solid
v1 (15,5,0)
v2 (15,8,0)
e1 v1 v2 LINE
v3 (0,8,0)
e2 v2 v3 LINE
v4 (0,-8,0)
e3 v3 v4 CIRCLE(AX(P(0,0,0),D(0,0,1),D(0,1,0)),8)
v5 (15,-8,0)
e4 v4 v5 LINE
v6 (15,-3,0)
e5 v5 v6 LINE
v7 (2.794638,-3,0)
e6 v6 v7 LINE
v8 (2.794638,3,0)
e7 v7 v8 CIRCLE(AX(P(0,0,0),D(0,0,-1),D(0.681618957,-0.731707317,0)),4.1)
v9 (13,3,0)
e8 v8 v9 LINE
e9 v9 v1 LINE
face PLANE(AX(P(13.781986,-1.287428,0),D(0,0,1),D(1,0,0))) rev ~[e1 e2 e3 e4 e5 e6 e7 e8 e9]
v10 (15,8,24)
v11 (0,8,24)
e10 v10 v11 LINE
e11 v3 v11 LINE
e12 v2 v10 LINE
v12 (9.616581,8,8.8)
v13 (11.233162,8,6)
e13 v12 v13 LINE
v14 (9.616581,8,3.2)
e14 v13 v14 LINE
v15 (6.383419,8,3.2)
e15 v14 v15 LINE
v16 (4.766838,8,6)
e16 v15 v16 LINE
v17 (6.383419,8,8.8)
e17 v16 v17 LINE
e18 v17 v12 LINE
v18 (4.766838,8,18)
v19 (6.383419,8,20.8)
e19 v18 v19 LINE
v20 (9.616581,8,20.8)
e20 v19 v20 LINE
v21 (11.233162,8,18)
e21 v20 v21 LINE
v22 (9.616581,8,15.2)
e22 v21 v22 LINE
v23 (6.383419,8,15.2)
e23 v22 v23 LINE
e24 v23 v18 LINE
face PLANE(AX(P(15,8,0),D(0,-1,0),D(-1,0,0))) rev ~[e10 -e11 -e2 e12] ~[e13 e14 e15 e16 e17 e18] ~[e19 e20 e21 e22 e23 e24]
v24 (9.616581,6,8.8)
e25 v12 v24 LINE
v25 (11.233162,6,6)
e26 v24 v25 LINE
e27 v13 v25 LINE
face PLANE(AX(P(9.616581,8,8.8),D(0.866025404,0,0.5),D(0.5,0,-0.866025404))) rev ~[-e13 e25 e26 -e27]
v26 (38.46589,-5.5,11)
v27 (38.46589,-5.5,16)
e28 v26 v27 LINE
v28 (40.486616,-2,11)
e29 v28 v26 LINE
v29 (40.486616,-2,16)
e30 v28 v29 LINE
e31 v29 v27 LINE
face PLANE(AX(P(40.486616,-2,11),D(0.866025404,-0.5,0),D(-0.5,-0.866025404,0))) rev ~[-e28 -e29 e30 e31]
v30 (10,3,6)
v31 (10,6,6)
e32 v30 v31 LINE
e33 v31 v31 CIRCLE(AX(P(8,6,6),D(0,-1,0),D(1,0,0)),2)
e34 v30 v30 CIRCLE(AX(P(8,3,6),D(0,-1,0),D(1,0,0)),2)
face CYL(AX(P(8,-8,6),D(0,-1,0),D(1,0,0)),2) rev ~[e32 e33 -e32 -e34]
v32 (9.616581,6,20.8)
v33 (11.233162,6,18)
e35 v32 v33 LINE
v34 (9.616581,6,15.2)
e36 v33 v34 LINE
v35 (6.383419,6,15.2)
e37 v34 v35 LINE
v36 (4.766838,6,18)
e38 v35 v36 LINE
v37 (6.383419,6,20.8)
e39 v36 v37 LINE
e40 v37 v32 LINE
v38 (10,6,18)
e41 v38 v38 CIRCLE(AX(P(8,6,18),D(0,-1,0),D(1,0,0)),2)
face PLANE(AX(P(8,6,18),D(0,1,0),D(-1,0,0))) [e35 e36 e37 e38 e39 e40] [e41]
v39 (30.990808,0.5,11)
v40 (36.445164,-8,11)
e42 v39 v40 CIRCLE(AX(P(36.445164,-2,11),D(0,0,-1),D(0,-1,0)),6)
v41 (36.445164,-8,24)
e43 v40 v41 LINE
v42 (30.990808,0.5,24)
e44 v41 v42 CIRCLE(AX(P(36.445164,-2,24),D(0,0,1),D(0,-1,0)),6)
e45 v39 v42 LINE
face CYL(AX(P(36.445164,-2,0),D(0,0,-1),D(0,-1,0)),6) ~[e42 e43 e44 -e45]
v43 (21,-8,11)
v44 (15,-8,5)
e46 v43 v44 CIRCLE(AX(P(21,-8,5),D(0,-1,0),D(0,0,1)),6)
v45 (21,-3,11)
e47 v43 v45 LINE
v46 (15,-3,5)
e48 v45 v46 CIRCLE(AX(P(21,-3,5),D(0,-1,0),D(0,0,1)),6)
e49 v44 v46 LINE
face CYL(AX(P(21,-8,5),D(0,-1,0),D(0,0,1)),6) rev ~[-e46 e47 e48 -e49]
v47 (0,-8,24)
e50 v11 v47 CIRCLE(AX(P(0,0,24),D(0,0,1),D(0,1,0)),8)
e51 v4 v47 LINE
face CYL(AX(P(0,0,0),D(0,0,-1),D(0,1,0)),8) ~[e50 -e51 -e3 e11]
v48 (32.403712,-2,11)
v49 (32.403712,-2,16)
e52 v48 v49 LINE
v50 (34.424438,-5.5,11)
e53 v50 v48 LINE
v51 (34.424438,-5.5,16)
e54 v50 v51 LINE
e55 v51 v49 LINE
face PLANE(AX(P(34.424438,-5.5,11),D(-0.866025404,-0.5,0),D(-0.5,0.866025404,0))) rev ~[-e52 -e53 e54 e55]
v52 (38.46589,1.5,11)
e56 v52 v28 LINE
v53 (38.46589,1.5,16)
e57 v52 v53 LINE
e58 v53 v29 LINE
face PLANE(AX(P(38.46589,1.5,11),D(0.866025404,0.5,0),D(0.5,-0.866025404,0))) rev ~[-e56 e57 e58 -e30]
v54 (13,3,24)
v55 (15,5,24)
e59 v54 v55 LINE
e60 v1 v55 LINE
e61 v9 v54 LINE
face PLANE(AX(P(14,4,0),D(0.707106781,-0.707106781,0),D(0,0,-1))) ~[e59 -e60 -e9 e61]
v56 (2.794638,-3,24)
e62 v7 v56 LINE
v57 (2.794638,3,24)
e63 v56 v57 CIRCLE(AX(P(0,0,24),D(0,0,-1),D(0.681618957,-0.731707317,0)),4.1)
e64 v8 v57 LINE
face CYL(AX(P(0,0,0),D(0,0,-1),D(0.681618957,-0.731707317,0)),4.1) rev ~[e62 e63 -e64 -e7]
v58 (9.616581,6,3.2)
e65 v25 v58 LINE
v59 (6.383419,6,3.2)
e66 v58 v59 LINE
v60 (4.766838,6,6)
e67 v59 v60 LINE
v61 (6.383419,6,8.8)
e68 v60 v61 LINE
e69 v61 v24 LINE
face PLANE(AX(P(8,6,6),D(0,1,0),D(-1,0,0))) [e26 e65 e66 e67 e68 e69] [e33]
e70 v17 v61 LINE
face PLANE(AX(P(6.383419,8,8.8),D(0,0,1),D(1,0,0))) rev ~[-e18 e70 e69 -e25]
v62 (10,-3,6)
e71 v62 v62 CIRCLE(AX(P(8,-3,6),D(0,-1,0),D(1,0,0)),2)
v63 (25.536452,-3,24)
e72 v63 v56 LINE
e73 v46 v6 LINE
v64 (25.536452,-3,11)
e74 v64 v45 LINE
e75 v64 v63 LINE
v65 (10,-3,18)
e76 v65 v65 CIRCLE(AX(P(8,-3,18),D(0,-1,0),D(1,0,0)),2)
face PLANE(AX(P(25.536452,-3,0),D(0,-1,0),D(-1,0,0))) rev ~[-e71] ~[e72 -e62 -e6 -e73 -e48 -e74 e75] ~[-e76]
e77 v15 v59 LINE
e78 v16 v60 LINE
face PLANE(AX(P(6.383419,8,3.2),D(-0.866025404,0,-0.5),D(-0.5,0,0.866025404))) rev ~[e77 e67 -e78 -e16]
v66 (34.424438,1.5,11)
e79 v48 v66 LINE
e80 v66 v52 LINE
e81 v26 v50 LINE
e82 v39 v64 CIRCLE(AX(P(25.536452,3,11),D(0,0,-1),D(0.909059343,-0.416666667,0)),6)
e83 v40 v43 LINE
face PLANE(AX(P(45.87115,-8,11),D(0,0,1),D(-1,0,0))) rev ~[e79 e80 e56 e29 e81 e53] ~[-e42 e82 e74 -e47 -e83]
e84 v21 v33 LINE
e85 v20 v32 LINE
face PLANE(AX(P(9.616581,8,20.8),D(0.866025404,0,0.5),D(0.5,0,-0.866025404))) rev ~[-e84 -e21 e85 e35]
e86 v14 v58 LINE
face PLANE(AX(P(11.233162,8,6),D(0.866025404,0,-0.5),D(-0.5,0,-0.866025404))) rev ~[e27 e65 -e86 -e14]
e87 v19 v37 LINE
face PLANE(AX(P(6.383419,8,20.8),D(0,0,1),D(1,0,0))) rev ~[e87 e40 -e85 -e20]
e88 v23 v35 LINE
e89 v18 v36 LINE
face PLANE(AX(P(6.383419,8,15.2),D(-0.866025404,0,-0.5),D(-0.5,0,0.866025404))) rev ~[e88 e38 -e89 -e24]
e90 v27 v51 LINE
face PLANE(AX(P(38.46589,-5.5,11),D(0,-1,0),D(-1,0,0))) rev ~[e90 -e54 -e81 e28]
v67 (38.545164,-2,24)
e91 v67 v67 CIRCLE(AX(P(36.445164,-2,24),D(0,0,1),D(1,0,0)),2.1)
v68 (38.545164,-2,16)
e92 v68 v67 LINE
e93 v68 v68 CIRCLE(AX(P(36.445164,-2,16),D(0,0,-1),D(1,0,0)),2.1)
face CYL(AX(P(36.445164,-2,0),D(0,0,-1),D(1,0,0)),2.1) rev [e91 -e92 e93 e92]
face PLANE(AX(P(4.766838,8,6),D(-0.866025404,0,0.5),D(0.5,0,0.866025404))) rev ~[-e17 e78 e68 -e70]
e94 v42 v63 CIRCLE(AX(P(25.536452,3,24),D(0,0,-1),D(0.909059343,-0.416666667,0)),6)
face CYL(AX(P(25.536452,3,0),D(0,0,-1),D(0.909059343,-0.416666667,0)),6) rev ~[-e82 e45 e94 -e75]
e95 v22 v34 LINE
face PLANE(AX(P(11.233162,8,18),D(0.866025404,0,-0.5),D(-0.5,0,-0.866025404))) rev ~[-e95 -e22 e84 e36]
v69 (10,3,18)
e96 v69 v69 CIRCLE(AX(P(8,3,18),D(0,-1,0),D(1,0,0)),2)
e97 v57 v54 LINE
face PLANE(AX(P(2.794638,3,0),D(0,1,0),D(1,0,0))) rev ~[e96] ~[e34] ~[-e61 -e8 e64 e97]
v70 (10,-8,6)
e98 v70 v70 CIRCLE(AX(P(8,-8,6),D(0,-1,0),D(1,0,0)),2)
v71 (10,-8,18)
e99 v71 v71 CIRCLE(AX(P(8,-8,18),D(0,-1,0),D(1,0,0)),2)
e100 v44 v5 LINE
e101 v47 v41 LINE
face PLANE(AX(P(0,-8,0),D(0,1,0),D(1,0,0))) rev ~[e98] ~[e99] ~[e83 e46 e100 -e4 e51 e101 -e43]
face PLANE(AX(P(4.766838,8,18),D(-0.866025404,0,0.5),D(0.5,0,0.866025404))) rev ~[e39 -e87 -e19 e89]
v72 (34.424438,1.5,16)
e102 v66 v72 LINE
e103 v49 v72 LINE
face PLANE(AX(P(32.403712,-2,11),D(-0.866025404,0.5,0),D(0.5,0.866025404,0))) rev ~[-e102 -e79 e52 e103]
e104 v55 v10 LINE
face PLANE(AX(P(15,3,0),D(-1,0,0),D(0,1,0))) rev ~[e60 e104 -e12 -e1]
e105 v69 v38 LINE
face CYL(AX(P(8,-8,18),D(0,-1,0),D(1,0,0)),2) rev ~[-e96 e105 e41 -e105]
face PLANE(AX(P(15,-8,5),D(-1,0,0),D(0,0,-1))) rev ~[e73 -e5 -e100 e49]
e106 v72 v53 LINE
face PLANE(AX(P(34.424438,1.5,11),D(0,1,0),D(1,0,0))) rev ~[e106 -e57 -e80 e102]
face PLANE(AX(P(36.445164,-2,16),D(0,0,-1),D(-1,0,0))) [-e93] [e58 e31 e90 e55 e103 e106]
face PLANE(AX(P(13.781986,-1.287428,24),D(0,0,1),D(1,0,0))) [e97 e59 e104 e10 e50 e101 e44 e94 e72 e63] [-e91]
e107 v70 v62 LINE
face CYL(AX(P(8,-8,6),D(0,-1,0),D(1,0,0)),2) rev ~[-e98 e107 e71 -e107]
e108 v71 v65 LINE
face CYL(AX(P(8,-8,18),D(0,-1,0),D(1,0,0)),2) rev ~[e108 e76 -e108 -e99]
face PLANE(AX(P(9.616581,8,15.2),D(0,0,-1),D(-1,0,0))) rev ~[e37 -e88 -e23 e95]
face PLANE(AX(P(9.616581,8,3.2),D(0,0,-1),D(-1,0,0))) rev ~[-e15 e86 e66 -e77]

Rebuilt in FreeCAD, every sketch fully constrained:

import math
import FreeCAD as App
import Part
import Sketcher
Q = App.Units.Quantity


def edges_at(feature, points):
    """Names of the edges that pass closest to the given points."""
    edges = feature.Shape.Edges
    near = lambda p: min(range(len(edges)), key=lambda i: edges[i].distToShape(Part.Vertex(*p))[0])
    return sorted({f"Edge{near(p) + 1}" for p in points})

doc = App.newDocument("Part")
body = doc.addObject("PartDesign::Body", "Body")

# Sketch on XY plane
sketch1 = body.newObject("Sketcher::SketchObject", "Sketch")
sketch1.AttachmentSupport = (doc.getObject("XY_Plane"), [""])
sketch1.MapMode = "FlatFace"
sketch1.addGeometry(Part.LineSegment(App.Vector(2.794638, 3, 0), App.Vector(15, 3, 0)), False)
sketch1.addGeometry(Part.LineSegment(App.Vector(15, 3, 0), App.Vector(15, 8, 0)), False)
sketch1.addGeometry(Part.LineSegment(App.Vector(15, 8, 0), App.Vector(0, 8, 0)), False)
sketch1.addGeometry(Part.ArcOfCircle(Part.Circle(App.Vector(0, 0, 0), App.Vector(0, 0, 1), 8), math.radians(90), math.radians(270)), False)
sketch1.addGeometry(Part.LineSegment(App.Vector(0, -8, 0), App.Vector(36.445164, -8, 0)), False)
sketch1.addGeometry(Part.ArcOfCircle(Part.Circle(App.Vector(36.445164, -2, 0), App.Vector(0, 0, 1), 6), math.radians(-90), math.radians(155.375682)), False)
sketch1.addGeometry(Part.ArcOfCircle(Part.Circle(App.Vector(25.536452, 3, 0), App.Vector(0, 0, 1), 6), math.radians(-90), math.radians(-24.624318)), False)
sketch1.addGeometry(Part.LineSegment(App.Vector(25.536452, -3, 0), App.Vector(2.794638, -3, 0)), False)
sketch1.addGeometry(Part.ArcOfCircle(Part.Circle(App.Vector(0, 0, 0), App.Vector(0, 0, 1), 4.1), math.radians(47.029716), math.radians(312.970284)), False)
sketch1.addGeometry(Part.Circle(App.Vector(36.445164, -2, 0), App.Vector(0, 0, 1), 2.1), False)
sketch1.addConstraint(Sketcher.Constraint("Coincident", 0, 2, 1, 1))
sketch1.addConstraint(Sketcher.Constraint("Coincident", 1, 2, 2, 1))
sketch1.addConstraint(Sketcher.Constraint("Tangent", 2, 2, 3, 1))
sketch1.addConstraint(Sketcher.Constraint("Tangent", 3, 2, 4, 1))
sketch1.addConstraint(Sketcher.Constraint("Tangent", 4, 2, 5, 1))
sketch1.addConstraint(Sketcher.Constraint("Tangent", 5, 2, 6, 2))
sketch1.addConstraint(Sketcher.Constraint("Tangent", 6, 1, 7, 1))
sketch1.addConstraint(Sketcher.Constraint("Coincident", 7, 2, 8, 2))
sketch1.addConstraint(Sketcher.Constraint("Coincident", 8, 1, 0, 1))
sketch1.addConstraint(Sketcher.Constraint("Horizontal", 0))
sketch1.addConstraint(Sketcher.Constraint("Vertical", 1))
sketch1.addConstraint(Sketcher.Constraint("Horizontal", 2))
sketch1.addConstraint(Sketcher.Constraint("Horizontal", 4))
sketch1.addConstraint(Sketcher.Constraint("Horizontal", 7))
sketch1.addConstraint(Sketcher.Constraint("Coincident", 3, 3, -1, 1))
sketch1.addConstraint(Sketcher.Constraint("Coincident", 8, 3, -1, 1))
sketch1.addConstraint(Sketcher.Constraint("Coincident", 9, 3, 5, 3))
sketch1.addConstraint(Sketcher.Constraint("Equal", 5, 6))
sketch1.addConstraint(Sketcher.Constraint("Horizontal", 6, 3, 0, 2))
sketch1.addConstraint(Sketcher.Constraint("Vertical", 7, 2, 8, 1))
sketch1.addConstraint(Sketcher.Constraint("Radius", 3, 8.0))
sketch1.addConstraint(Sketcher.Constraint("Radius", 5, 6.0))
sketch1.addConstraint(Sketcher.Constraint("Diameter", 9, 4.2))
sketch1.addConstraint(Sketcher.Constraint("Radius", 8, 4.1))
sketch1.addConstraint(Sketcher.Constraint("DistanceX", 2, 2, 2, 1, 15.0))
sketch1.addConstraint(Sketcher.Constraint("DistanceX", 4, 1, 4, 2, 36.445164))
pad1 = body.newObject("PartDesign::Pad", "Pad")
pad1.Profile = sketch1
pad1.Length = 24

# Sketch on XZ plane
sketch2 = body.newObject("Sketcher::SketchObject", "Sketch001")
sketch2.AttachmentSupport = (doc.getObject("XZ_Plane"), [""])
sketch2.MapMode = "FlatFace"
sketch2.AttachmentOffset = App.Placement(App.Vector(0, 0, 8), App.Rotation())
sketch2.addGeometry(Part.Circle(App.Vector(8, 18, 0), App.Vector(0, 0, 1), 2), False)
sketch2.addGeometry(Part.Circle(App.Vector(8, 6, 0), App.Vector(0, 0, 1), 2), False)
sketch2.addGeometry(Part.LineSegment(App.Vector(15, 5, 0), App.Vector(15, 0, 0)), False)
sketch2.addGeometry(Part.LineSegment(App.Vector(15, 0, 0), App.Vector(45.87115, 0, 0)), False)
sketch2.addGeometry(Part.LineSegment(App.Vector(45.87115, 0, 0), App.Vector(45.87115, 11, 0)), False)
sketch2.addGeometry(Part.LineSegment(App.Vector(45.87115, 11, 0), App.Vector(21, 11, 0)), False)
sketch2.addGeometry(Part.ArcOfCircle(Part.Circle(App.Vector(21, 5, 0), App.Vector(0, 0, 1), 6), math.radians(90), math.radians(180)), False)
sketch2.addConstraint(Sketcher.Constraint("Coincident", 2, 2, 3, 1))
sketch2.addConstraint(Sketcher.Constraint("Coincident", 3, 2, 4, 1))
sketch2.addConstraint(Sketcher.Constraint("Coincident", 4, 2, 5, 1))
sketch2.addConstraint(Sketcher.Constraint("Tangent", 5, 2, 6, 1))
sketch2.addConstraint(Sketcher.Constraint("Tangent", 6, 2, 2, 1))
sketch2.addConstraint(Sketcher.Constraint("Vertical", 2))
sketch2.addConstraint(Sketcher.Constraint("Horizontal", 3))
sketch2.addConstraint(Sketcher.Constraint("Vertical", 4))
sketch2.addConstraint(Sketcher.Constraint("Horizontal", 5))
sketch2.addConstraint(Sketcher.Constraint("Equal", 0, 1))
sketch2.addConstraint(Sketcher.Constraint("PointOnObject", 2, 2, -1))
sketch2.addConstraint(Sketcher.Constraint("Vertical", 0, 3, 1, 3))
sketch2.addConstraint(Sketcher.Constraint("Diameter", 0, 4.0))
sketch2.addConstraint(Sketcher.Constraint("Radius", 6, 6.0))
sketch2.addConstraint(Sketcher.Constraint("DistanceY", 2, 2, 2, 1, 5.0))
sketch2.addConstraint(Sketcher.Constraint("DistanceX", -1, 1, 0, 3, 8.0))
sketch2.addConstraint(Sketcher.Constraint("DistanceY", -1, 1, 0, 3, 18.0))
sketch2.addConstraint(Sketcher.Constraint("DistanceY", -1, 1, 1, 3, 6.0))
sketch2.addConstraint(Sketcher.Constraint("DistanceX", -1, 1, 6, 3, 21.0))
sketch2.addConstraint(Sketcher.Constraint("DistanceX", 3, 1, 3, 2, 30.87115))
pocket1 = body.newObject("PartDesign::Pocket", "Pocket")
pocket1.Profile = sketch2
pocket1.Type = "ThroughAll"

# Sketch on XZ plane
sketch3 = body.newObject("Sketcher::SketchObject", "Sketch002")
sketch3.AttachmentSupport = (doc.getObject("XZ_Plane"), [""])
sketch3.MapMode = "FlatFace"
sketch3.AttachmentOffset = App.Placement(App.Vector(0, 0, -8), App.Rotation())
sketch3.addGeometry(Part.LineSegment(App.Vector(9.616581, 8.8, 0), App.Vector(11.233162, 6, 0)), False)
sketch3.addGeometry(Part.LineSegment(App.Vector(11.233162, 6, 0), App.Vector(9.616581, 3.2, 0)), False)
sketch3.addGeometry(Part.LineSegment(App.Vector(9.616581, 3.2, 0), App.Vector(6.383419, 3.2, 0)), False)
sketch3.addGeometry(Part.LineSegment(App.Vector(6.383419, 3.2, 0), App.Vector(4.766838, 6, 0)), False)
sketch3.addGeometry(Part.LineSegment(App.Vector(4.766838, 6, 0), App.Vector(6.383419, 8.8, 0)), False)
sketch3.addGeometry(Part.LineSegment(App.Vector(6.383419, 8.8, 0), App.Vector(9.616581, 8.8, 0)), False)
sketch3.addGeometry(Part.LineSegment(App.Vector(9.616581, 20.8, 0), App.Vector(11.233162, 18, 0)), False)
sketch3.addGeometry(Part.LineSegment(App.Vector(11.233162, 18, 0), App.Vector(9.616581, 15.2, 0)), False)
sketch3.addGeometry(Part.LineSegment(App.Vector(9.616581, 15.2, 0), App.Vector(6.383419, 15.2, 0)), False)
sketch3.addGeometry(Part.LineSegment(App.Vector(6.383419, 15.2, 0), App.Vector(4.766838, 18, 0)), False)
sketch3.addGeometry(Part.LineSegment(App.Vector(4.766838, 18, 0), App.Vector(6.383419, 20.8, 0)), False)
sketch3.addGeometry(Part.LineSegment(App.Vector(6.383419, 20.8, 0), App.Vector(9.616581, 20.8, 0)), False)
sketch3.addConstraint(Sketcher.Constraint("Coincident", 0, 2, 1, 1))
sketch3.addConstraint(Sketcher.Constraint("Coincident", 1, 2, 2, 1))
sketch3.addConstraint(Sketcher.Constraint("Coincident", 2, 2, 3, 1))
sketch3.addConstraint(Sketcher.Constraint("Coincident", 3, 2, 4, 1))
sketch3.addConstraint(Sketcher.Constraint("Coincident", 4, 2, 5, 1))
sketch3.addConstraint(Sketcher.Constraint("Coincident", 5, 2, 0, 1))
sketch3.addConstraint(Sketcher.Constraint("Coincident", 6, 2, 7, 1))
sketch3.addConstraint(Sketcher.Constraint("Coincident", 7, 2, 8, 1))
sketch3.addConstraint(Sketcher.Constraint("Coincident", 8, 2, 9, 1))
sketch3.addConstraint(Sketcher.Constraint("Coincident", 9, 2, 10, 1))
sketch3.addConstraint(Sketcher.Constraint("Coincident", 10, 2, 11, 1))
sketch3.addConstraint(Sketcher.Constraint("Coincident", 11, 2, 6, 1))
sketch3.addConstraint(Sketcher.Constraint("Horizontal", 2))
sketch3.addConstraint(Sketcher.Constraint("Horizontal", 5))
sketch3.addConstraint(Sketcher.Constraint("Horizontal", 8))
sketch3.addConstraint(Sketcher.Constraint("Horizontal", 11))
sketch3.addConstraint(Sketcher.Constraint("Parallel", 0, 3))
sketch3.addConstraint(Sketcher.Constraint("Parallel", 1, 4))
sketch3.addConstraint(Sketcher.Constraint("Parallel", 3, 6))
sketch3.addConstraint(Sketcher.Constraint("Parallel", 4, 7))
sketch3.addConstraint(Sketcher.Constraint("Parallel", 6, 9))
sketch3.addConstraint(Sketcher.Constraint("Parallel", 7, 10))
sketch3.addConstraint(Sketcher.Constraint("Horizontal", 0, 2, 3, 2))
sketch3.addConstraint(Sketcher.Constraint("Horizontal", 6, 2, 9, 2))
sketch3.addConstraint(Sketcher.Constraint("Vertical", 2, 2, 4, 2))
sketch3.addConstraint(Sketcher.Constraint("Vertical", 1, 2, 5, 2))
sketch3.addConstraint(Sketcher.Constraint("Vertical", 0, 2, 6, 2))
sketch3.addConstraint(Sketcher.Constraint("Vertical", 5, 2, 7, 2))
sketch3.addConstraint(Sketcher.Constraint("Vertical", 4, 2, 8, 2))
sketch3.addConstraint(Sketcher.Constraint("Vertical", 8, 2, 10, 2))
sketch3.addConstraint(Sketcher.Constraint("Angle", 0, Q("-60 deg")))
sketch3.addConstraint(Sketcher.Constraint("DistanceY", -1, 1, 0, 2, 6.0))
sketch3.addConstraint(Sketcher.Constraint("DistanceY", -1, 1, 6, 2, 18.0))
sketch3.addConstraint(Sketcher.Constraint("DistanceY", -1, 1, 1, 2, 3.2))
sketch3.addConstraint(Sketcher.Constraint("DistanceX", 2, 2, 2, 1, 3.233162))
sketch3.addConstraint(Sketcher.Constraint("DistanceX", -1, 1, 0, 2, 11.233162))
pocket2 = body.newObject("PartDesign::Pocket", "Pocket001")
pocket2.Profile = sketch3
pocket2.Length = 2
pocket2.Reversed = True

# Sketch on XY plane
sketch4 = body.newObject("Sketcher::SketchObject", "Sketch003")
sketch4.AttachmentSupport = (doc.getObject("XY_Plane"), [""])
sketch4.MapMode = "FlatFace"
sketch4.AttachmentOffset = App.Placement(App.Vector(0, 0, 11), App.Rotation())
sketch4.addGeometry(Part.LineSegment(App.Vector(34.424438, 1.5, 0), App.Vector(38.46589, 1.5, 0)), False)
sketch4.addGeometry(Part.LineSegment(App.Vector(38.46589, 1.5, 0), App.Vector(40.486616, -2, 0)), False)
sketch4.addGeometry(Part.LineSegment(App.Vector(40.486616, -2, 0), App.Vector(38.46589, -5.5, 0)), False)
sketch4.addGeometry(Part.LineSegment(App.Vector(38.46589, -5.5, 0), App.Vector(34.424438, -5.5, 0)), False)
sketch4.addGeometry(Part.LineSegment(App.Vector(34.424438, -5.5, 0), App.Vector(32.403712, -2, 0)), False)
sketch4.addGeometry(Part.LineSegment(App.Vector(32.403712, -2, 0), App.Vector(34.424438, 1.5, 0)), False)
sketch4.addConstraint(Sketcher.Constraint("Coincident", 0, 2, 1, 1))
sketch4.addConstraint(Sketcher.Constraint("Coincident", 1, 2, 2, 1))
sketch4.addConstraint(Sketcher.Constraint("Coincident", 2, 2, 3, 1))
sketch4.addConstraint(Sketcher.Constraint("Coincident", 3, 2, 4, 1))
sketch4.addConstraint(Sketcher.Constraint("Coincident", 4, 2, 5, 1))
sketch4.addConstraint(Sketcher.Constraint("Coincident", 5, 2, 0, 1))
sketch4.addConstraint(Sketcher.Constraint("Horizontal", 0))
sketch4.addConstraint(Sketcher.Constraint("Horizontal", 3))
sketch4.addConstraint(Sketcher.Constraint("Parallel", 1, 4))
sketch4.addConstraint(Sketcher.Constraint("Parallel", 2, 5))
sketch4.addConstraint(Sketcher.Constraint("Horizontal", 1, 2, 4, 2))
sketch4.addConstraint(Sketcher.Constraint("Vertical", 0, 2, 2, 2))
sketch4.addConstraint(Sketcher.Constraint("Vertical", 3, 2, 5, 2))
sketch4.addConstraint(Sketcher.Constraint("Angle", 1, Q("-60 deg")))
sketch4.addConstraint(Sketcher.Constraint("DistanceY", 1, 2, -1, 1, 2.0))
sketch4.addConstraint(Sketcher.Constraint("DistanceY", 2, 2, 0, 2, 7.0))
sketch4.addConstraint(Sketcher.Constraint("DistanceX", 0, 1, 0, 2, 4.041452))
sketch4.addConstraint(Sketcher.Constraint("DistanceX", -1, 1, 0, 2, 38.46589))
pocket3 = body.newObject("PartDesign::Pocket", "Pocket002")
pocket3.Profile = sketch4
pocket3.Length = 5
pocket3.Reversed = True
doc.recompute()

chamfer = body.newObject("PartDesign::Chamfer", "Chamfer")
chamfer.Base = (pocket3, edges_at(pocket3, [(15, 3, 12)]))
chamfer.Size = 2

doc.recompute()
